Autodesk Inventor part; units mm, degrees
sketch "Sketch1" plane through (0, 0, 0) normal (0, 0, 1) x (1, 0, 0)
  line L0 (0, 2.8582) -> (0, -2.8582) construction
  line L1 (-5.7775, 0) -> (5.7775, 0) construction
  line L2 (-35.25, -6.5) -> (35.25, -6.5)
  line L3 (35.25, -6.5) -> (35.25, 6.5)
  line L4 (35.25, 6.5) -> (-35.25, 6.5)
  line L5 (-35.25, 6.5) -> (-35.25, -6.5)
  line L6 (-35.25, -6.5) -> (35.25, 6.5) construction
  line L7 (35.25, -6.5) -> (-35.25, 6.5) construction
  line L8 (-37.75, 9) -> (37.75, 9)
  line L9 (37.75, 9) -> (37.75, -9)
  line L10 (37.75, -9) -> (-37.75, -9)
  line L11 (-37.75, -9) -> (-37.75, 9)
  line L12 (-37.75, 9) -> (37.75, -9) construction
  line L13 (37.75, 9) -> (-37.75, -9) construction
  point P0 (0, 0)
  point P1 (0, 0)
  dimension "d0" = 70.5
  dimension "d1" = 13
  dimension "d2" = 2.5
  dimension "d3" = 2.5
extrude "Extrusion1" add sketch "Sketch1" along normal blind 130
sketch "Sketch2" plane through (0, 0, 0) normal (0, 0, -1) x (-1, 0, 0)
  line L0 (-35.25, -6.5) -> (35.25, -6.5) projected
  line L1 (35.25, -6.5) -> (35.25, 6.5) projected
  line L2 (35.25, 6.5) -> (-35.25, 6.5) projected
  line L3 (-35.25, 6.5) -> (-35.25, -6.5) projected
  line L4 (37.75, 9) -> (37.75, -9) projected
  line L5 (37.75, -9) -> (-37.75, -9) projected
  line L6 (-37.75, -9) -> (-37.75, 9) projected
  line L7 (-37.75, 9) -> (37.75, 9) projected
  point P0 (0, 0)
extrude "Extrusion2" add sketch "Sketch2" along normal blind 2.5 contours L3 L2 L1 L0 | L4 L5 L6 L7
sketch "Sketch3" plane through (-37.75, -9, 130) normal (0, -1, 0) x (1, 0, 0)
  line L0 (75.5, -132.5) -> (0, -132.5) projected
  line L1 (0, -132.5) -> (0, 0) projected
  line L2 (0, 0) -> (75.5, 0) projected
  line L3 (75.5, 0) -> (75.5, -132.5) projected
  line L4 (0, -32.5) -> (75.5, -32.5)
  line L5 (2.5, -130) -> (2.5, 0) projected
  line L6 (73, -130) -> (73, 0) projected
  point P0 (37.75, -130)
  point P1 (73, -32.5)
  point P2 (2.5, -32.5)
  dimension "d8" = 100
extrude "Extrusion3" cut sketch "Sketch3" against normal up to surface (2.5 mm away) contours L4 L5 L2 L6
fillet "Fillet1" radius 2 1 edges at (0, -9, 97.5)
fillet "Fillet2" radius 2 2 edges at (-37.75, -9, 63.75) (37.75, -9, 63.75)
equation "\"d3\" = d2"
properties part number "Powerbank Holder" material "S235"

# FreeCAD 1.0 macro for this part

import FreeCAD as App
import Part
import Sketcher
from FreeCAD import Vector


def edges_at(feature, points):
    """Names of the edges that pass closest to the given points."""
    edges = feature.Shape.Edges
    near = lambda p: min(range(len(edges)), key=lambda i: edges[i].distToShape(Part.Vertex(*p))[0])
    return sorted({f"Edge{near(p) + 1}" for p in points})

doc = App.newDocument("Part")
body = doc.addObject("PartDesign::Body", "Body")

# Sketch on XY plane
sketch1 = body.newObject("Sketcher::SketchObject", "Sketch")
sketch1.AttachmentSupport = (doc.getObject("XY_Plane"), [""])
sketch1.MapMode = "FlatFace"
sketch1.addGeometry([
    Part.LineSegment(Vector(37.75, 9, 0), Vector(-37.75, 9, 0)),  # 0
    Part.LineSegment(Vector(-37.75, 9, 0), Vector(-37.75, -9, 0)),  # 1
    Part.LineSegment(Vector(-37.75, -9, 0), Vector(37.75, -9, 0)),  # 2
    Part.LineSegment(Vector(37.75, -9, 0), Vector(37.75, 9, 0)),  # 3
    Part.LineSegment(Vector(35.25, -6.5, 0), Vector(-35.25, -6.5, 0)),  # 4
    Part.LineSegment(Vector(-35.25, -6.5, 0), Vector(-35.25, 6.5, 0)),  # 5
    Part.LineSegment(Vector(-35.25, 6.5, 0), Vector(35.25, 6.5, 0)),  # 6
    Part.LineSegment(Vector(35.25, 6.5, 0), Vector(35.25, -6.5, 0)),  # 7
], False)
sketch1.addConstraint([
    Sketcher.Constraint("Coincident", 0, 2, 1, 1),
    Sketcher.Constraint("Coincident", 1, 2, 2, 1),
    Sketcher.Constraint("Coincident", 2, 2, 3, 1),
    Sketcher.Constraint("Coincident", 3, 2, 0, 1),
    Sketcher.Constraint("Coincident", 4, 2, 5, 1),
    Sketcher.Constraint("Coincident", 5, 2, 6, 1),
    Sketcher.Constraint("Coincident", 6, 2, 7, 1),
    Sketcher.Constraint("Coincident", 7, 2, 4, 1),
    Sketcher.Constraint("Horizontal", 0),
    Sketcher.Constraint("Vertical", 1),
    Sketcher.Constraint("Horizontal", 2),
    Sketcher.Constraint("Vertical", 3),
    Sketcher.Constraint("Horizontal", 4),
    Sketcher.Constraint("Vertical", 5),
    Sketcher.Constraint("Horizontal", 6),
    Sketcher.Constraint("Vertical", 7),
    Sketcher.Constraint("Symmetric", 0, 2, 2, 2, -1, 1),
    Sketcher.Constraint("Symmetric", 4, 2, 6, 2, -1, 1),
    Sketcher.Constraint("DistanceY", 5, 1, 5, 2, 13.0),
    Sketcher.Constraint("DistanceX", 4, 2, 4, 1, 70.5),
    Sketcher.Constraint("DistanceX", 1, 2, 4, 2, 2.5),
    Sketcher.Constraint("DistanceY", 1, 2, 4, 2, 2.5),
])
pad1 = body.newObject("PartDesign::Pad", "Pad")
pad1.Profile = sketch1
pad1.Length = 130

# Sketch on XY plane
sketch2 = body.newObject("Sketcher::SketchObject", "Sketch001")
sketch2.AttachmentSupport = (doc.getObject("XY_Plane"), [""])
sketch2.MapMode = "FlatFace"
sketch2.addGeometry([
    Part.LineSegment(Vector(-37.75, -9, 0), Vector(-37.75, 9, 0)),
    Part.LineSegment(Vector(-37.75, 9, 0), Vector(37.75, 9, 0)),
    Part.LineSegment(Vector(37.75, 9, 0), Vector(37.75, -9, 0)),
    Part.LineSegment(Vector(37.75, -9, 0), Vector(-37.75, -9, 0)),
], False)
sketch2.addConstraint([
    Sketcher.Constraint("Coincident", 0, 2, 1, 1),
    Sketcher.Constraint("Coincident", 1, 2, 2, 1),
    Sketcher.Constraint("Coincident", 2, 2, 3, 1),
    Sketcher.Constraint("Coincident", 3, 2, 0, 1),
    Sketcher.Constraint("Vertical", 0),
    Sketcher.Constraint("Horizontal", 1),
    Sketcher.Constraint("Vertical", 2),
    Sketcher.Constraint("Horizontal", 3),
    Sketcher.Constraint("Symmetric", 0, 2, 2, 2, -1, 1),
    Sketcher.Constraint("DistanceY", 0, 1, 0, 2, 18.0),
    Sketcher.Constraint("DistanceX", 1, 1, 1, 2, 75.5),
])
pad2 = body.newObject("PartDesign::Pad", "Pad001")
pad2.Profile = sketch2
pad2.Length = 2.5
pad2.Reversed = True

# Sketch on XZ plane
sketch3 = body.newObject("Sketcher::SketchObject", "Sketch002")
sketch3.AttachmentSupport = (doc.getObject("XZ_Plane"), [""])
sketch3.MapMode = "FlatFace"
sketch3.AttachmentOffset = App.Placement(Vector(0, 0, 9), App.Rotation())
sketch3.addGeometry([
    Part.LineSegment(Vector(-35.25, 97.5, 0), Vector(35.25, 97.5, 0)),
    Part.LineSegment(Vector(35.25, 97.5, 0), Vector(35.25, 130, 0)),
    Part.LineSegment(Vector(35.25, 130, 0), Vector(-35.25, 130, 0)),
    Part.LineSegment(Vector(-35.25, 130, 0), Vector(-35.25, 97.5, 0)),
], False)
sketch3.addConstraint([
    Sketcher.Constraint("Coincident", 0, 2, 1, 1),
    Sketcher.Constraint("Coincident", 1, 2, 2, 1),
    Sketcher.Constraint("Coincident", 2, 2, 3, 1),
    Sketcher.Constraint("Coincident", 3, 2, 0, 1),
    Sketcher.Constraint("Horizontal", 0),
    Sketcher.Constraint("Vertical", 1),
    Sketcher.Constraint("Horizontal", 2),
    Sketcher.Constraint("Vertical", 3),
    Sketcher.Constraint("DistanceX", 0, 1, 0, 2, 70.5),
    Sketcher.Constraint("DistanceY", 1, 1, 1, 2, 32.5),
    Sketcher.Constraint("DistanceY", -1, 1, 1, 2, 130.0),
    Sketcher.Constraint("DistanceX", -1, 1, 0, 2, 35.25),
])
pocket1 = body.newObject("PartDesign::Pocket", "Pocket")
pocket1.Profile = sketch3
pocket1.Length = 2.5
doc.recompute()

fillet = body.newObject("PartDesign::Fillet", "Fillet")
fillet.Base = (pocket1, edges_at(pocket1, [(0, -9, 97.5)]))
fillet.Radius = 2
doc.recompute()

fillet2 = body.newObject("PartDesign::Fillet", "Fillet001")
fillet2.Base = (fillet, edges_at(fillet, [(-37.75, -9, 63.75), (37.75, -9, 63.75)]))
fillet2.Radius = 2

doc.recompute()
